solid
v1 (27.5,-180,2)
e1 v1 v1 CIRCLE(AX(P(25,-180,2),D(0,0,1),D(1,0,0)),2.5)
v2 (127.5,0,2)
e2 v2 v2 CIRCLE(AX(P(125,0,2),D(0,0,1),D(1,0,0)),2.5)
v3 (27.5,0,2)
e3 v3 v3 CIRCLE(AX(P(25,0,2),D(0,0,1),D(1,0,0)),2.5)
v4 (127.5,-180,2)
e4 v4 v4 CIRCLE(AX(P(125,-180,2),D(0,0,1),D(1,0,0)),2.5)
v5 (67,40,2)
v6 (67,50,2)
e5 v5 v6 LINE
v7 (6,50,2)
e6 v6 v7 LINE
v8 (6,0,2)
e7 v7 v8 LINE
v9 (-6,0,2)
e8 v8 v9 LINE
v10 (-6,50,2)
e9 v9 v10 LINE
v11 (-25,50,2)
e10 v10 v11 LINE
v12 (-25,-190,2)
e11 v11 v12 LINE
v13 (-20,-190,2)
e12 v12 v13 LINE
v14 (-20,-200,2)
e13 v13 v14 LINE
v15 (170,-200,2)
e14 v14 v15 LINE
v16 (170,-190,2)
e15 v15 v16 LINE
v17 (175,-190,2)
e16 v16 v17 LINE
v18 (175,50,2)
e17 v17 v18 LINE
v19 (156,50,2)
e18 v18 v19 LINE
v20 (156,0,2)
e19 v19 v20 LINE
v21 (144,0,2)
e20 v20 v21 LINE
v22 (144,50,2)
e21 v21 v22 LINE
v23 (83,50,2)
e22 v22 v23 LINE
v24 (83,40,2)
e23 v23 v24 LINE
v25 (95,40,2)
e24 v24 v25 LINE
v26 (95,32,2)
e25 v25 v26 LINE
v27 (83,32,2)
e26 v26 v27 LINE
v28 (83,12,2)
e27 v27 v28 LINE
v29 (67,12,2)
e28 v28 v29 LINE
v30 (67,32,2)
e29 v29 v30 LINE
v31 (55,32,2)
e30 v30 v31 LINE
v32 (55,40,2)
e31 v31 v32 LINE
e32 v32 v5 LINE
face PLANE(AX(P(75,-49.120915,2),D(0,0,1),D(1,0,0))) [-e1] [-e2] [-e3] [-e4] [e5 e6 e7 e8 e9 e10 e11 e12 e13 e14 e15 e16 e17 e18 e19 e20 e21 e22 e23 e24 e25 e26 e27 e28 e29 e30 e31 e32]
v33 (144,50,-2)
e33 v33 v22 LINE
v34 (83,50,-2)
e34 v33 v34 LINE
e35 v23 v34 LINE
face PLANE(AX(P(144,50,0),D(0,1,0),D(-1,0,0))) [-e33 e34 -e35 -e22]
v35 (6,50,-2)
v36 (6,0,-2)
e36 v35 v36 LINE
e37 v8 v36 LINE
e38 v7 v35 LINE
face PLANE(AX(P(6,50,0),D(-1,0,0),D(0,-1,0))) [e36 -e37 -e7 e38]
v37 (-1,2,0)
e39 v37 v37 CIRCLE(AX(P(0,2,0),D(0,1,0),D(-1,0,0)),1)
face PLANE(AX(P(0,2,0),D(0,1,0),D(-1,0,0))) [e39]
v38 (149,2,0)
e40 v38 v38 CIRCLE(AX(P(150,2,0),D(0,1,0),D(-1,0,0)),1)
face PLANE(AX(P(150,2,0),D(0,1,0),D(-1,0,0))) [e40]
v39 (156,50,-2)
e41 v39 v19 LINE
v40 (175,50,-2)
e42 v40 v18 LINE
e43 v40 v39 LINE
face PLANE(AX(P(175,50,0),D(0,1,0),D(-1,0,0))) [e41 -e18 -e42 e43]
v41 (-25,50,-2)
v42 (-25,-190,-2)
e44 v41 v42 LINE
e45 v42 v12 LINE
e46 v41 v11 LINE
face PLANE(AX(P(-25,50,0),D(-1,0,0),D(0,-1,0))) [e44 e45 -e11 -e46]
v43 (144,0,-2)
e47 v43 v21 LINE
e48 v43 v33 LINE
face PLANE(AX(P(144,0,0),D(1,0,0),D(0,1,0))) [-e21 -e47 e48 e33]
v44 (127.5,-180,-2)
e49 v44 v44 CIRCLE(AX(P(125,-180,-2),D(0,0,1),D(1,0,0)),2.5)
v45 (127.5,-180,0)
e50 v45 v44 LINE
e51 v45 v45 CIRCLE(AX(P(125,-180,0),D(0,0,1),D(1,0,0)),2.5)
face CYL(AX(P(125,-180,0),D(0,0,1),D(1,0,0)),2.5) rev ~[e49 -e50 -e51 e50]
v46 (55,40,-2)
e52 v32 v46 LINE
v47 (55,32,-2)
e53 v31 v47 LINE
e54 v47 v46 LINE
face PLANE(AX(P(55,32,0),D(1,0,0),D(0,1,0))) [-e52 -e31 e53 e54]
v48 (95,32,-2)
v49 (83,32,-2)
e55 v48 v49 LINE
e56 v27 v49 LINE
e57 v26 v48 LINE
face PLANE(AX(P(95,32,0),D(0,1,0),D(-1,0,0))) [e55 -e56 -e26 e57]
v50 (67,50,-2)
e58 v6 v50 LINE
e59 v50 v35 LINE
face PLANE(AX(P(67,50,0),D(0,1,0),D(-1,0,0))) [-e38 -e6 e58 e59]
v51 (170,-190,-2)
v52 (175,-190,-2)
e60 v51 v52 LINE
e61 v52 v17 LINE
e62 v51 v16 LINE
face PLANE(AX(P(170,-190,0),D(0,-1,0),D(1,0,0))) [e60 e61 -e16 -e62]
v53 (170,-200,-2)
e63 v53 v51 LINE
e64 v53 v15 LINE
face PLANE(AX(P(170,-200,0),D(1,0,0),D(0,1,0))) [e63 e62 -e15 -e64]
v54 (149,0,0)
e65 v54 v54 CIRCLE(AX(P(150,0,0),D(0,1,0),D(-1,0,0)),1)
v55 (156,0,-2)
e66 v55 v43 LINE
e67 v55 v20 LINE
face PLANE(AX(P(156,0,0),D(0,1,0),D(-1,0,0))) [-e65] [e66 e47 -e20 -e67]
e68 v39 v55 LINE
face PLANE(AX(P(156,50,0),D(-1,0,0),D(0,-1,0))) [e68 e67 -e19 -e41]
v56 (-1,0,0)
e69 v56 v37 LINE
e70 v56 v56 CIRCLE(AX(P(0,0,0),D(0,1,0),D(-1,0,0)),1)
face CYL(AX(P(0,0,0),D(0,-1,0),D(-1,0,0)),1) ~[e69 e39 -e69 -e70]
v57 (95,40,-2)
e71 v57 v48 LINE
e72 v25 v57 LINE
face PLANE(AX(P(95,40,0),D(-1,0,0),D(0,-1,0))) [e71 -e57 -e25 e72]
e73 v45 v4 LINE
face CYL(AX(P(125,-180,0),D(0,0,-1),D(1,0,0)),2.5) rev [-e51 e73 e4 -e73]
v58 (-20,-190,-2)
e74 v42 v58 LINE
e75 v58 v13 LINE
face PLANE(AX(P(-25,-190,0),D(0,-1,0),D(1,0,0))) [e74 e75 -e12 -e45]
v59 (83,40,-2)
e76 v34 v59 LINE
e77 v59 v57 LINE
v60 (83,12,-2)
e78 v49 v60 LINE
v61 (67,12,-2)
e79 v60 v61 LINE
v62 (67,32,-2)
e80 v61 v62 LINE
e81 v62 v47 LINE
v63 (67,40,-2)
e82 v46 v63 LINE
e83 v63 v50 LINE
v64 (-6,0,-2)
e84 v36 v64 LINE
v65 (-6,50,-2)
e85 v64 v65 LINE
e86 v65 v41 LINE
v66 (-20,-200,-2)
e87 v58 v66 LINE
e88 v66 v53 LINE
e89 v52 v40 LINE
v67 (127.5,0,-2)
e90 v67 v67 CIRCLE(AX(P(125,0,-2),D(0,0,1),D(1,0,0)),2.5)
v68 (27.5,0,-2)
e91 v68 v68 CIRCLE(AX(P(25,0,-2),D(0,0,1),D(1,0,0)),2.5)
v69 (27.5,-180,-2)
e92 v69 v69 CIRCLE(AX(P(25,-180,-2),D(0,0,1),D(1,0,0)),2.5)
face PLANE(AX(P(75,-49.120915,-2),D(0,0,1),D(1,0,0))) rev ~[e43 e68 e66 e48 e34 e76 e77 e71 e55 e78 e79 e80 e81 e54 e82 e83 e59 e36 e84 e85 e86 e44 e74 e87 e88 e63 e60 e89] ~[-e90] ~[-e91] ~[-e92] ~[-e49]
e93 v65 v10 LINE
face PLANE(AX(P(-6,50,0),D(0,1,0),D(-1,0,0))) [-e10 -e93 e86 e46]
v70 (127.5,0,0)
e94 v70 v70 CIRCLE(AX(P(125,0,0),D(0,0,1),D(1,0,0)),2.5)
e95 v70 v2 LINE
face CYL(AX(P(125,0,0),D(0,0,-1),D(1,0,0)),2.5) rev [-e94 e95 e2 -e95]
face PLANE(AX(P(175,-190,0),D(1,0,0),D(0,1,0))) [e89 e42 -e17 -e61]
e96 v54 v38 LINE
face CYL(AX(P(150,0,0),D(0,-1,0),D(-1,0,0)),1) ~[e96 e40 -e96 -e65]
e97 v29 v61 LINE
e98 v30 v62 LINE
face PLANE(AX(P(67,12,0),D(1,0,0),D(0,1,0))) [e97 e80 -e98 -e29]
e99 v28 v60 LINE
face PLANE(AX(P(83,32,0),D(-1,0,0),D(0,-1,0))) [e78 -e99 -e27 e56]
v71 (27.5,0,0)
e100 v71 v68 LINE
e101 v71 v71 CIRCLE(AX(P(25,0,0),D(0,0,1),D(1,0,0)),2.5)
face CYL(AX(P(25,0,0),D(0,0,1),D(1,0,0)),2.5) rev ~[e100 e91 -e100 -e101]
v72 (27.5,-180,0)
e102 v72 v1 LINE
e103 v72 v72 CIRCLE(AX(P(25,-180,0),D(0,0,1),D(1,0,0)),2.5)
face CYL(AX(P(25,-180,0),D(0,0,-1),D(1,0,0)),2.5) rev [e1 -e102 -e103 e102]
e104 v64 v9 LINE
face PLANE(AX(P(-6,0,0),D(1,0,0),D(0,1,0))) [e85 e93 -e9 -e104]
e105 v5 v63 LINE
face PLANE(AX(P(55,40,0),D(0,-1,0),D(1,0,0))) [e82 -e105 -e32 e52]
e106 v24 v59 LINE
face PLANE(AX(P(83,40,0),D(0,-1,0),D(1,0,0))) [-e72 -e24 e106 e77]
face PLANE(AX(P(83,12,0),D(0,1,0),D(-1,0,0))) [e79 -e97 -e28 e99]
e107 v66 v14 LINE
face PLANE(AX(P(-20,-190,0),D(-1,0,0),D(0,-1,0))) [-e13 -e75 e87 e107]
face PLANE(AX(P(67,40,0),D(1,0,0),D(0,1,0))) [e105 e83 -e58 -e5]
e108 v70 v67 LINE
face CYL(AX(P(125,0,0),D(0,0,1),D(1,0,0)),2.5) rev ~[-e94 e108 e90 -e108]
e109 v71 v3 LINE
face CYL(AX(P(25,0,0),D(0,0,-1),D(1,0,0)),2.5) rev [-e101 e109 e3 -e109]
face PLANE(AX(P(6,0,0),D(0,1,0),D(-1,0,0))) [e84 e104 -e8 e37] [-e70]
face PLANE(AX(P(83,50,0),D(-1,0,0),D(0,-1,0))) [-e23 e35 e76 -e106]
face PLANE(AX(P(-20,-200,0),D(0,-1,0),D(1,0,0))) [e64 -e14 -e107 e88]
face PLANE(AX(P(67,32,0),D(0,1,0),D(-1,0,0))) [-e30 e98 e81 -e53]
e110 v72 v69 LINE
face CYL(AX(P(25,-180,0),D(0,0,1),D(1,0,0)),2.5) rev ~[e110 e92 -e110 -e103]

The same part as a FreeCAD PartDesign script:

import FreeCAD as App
import Part
import Sketcher
from FreeCAD import Vector

doc = App.newDocument("Part")
body = doc.addObject("PartDesign::Body", "Body")

# Sketch on XY plane
sketch1 = doc.addObject("Sketcher::SketchObject", "Sketch")
body.addObject(sketch1)
sketch1.AttachmentSupport = (doc.XY_Plane, [""])
sketch1.MapMode = "FlatFace"
sketch1.addGeometry(Part.LineSegment(Vector(6, 0, 0), Vector(-6, 0, 0)), False)
sketch1.addGeometry(Part.LineSegment(Vector(-6, 0, 0), Vector(-6, 50, 0)), False)
sketch1.addGeometry(Part.LineSegment(Vector(-6, 50, 0), Vector(-25, 50, 0)), False)
sketch1.addGeometry(Part.LineSegment(Vector(-25, 50, 0), Vector(-25, -190, 0)), False)
sketch1.addGeometry(Part.LineSegment(Vector(-25, -190, 0), Vector(-20, -190, 0)), False)
sketch1.addGeometry(Part.LineSegment(Vector(-20, -190, 0), Vector(-20, -200, 0)), False)
sketch1.addGeometry(Part.LineSegment(Vector(-20, -200, 0), Vector(170, -200, 0)), False)
sketch1.addGeometry(Part.LineSegment(Vector(170, -200, 0), Vector(170, -190, 0)), False)
sketch1.addGeometry(Part.LineSegment(Vector(170, -190, 0), Vector(175, -190, 0)), False)
sketch1.addGeometry(Part.LineSegment(Vector(175, -190, 0), Vector(175, 50, 0)), False)
sketch1.addGeometry(Part.LineSegment(Vector(175, 50, 0), Vector(156, 50, 0)), False)
sketch1.addGeometry(Part.LineSegment(Vector(156, 50, 0), Vector(156, 0, 0)), False)
sketch1.addGeometry(Part.LineSegment(Vector(156, 0, 0), Vector(144, 0, 0)), False)
sketch1.addGeometry(Part.LineSegment(Vector(144, 0, 0), Vector(144, 50, 0)), False)
sketch1.addGeometry(Part.LineSegment(Vector(144, 50, 0), Vector(83, 50, 0)), False)
sketch1.addGeometry(Part.LineSegment(Vector(83, 50, 0), Vector(83, 40, 0)), False)
sketch1.addGeometry(Part.LineSegment(Vector(83, 40, 0), Vector(95, 40, 0)), False)
sketch1.addGeometry(Part.LineSegment(Vector(95, 40, 0), Vector(95, 32, 0)), False)
sketch1.addGeometry(Part.LineSegment(Vector(95, 32, 0), Vector(83, 32, 0)), False)
sketch1.addGeometry(Part.LineSegment(Vector(83, 32, 0), Vector(83, 12, 0)), False)
sketch1.addGeometry(Part.LineSegment(Vector(83, 12, 0), Vector(67, 12, 0)), False)
sketch1.addGeometry(Part.LineSegment(Vector(67, 12, 0), Vector(67, 32, 0)), False)
sketch1.addGeometry(Part.LineSegment(Vector(67, 32, 0), Vector(55, 32, 0)), False)
sketch1.addGeometry(Part.LineSegment(Vector(55, 32, 0), Vector(55, 40, 0)), False)
sketch1.addGeometry(Part.LineSegment(Vector(55, 40, 0), Vector(67, 40, 0)), False)
sketch1.addGeometry(Part.LineSegment(Vector(67, 40, 0), Vector(67, 50, 0)), False)
sketch1.addGeometry(Part.LineSegment(Vector(67, 50, 0), Vector(6, 50, 0)), False)
sketch1.addGeometry(Part.LineSegment(Vector(6, 50, 0), Vector(6, 0, 0)), False)
sketch1.addGeometry(Part.Circle(Vector(25, -180, 0), Vector(0, 0, 1), 2.5), False)
sketch1.addGeometry(Part.Circle(Vector(125, -180, 0), Vector(0, 0, 1), 2.5), False)
sketch1.addGeometry(Part.Circle(Vector(25, 0, 0), Vector(0, 0, 1), 2.5), False)
sketch1.addGeometry(Part.Circle(Vector(125, 0, 0), Vector(0, 0, 1), 2.5), False)
sketch1.addConstraint(Sketcher.Constraint("Coincident", 0, 2, 1, 1))
sketch1.addConstraint(Sketcher.Constraint("Coincident", 1, 2, 2, 1))
sketch1.addConstraint(Sketcher.Constraint("Coincident", 2, 2, 3, 1))
sketch1.addConstraint(Sketcher.Constraint("Coincident", 3, 2, 4, 1))
sketch1.addConstraint(Sketcher.Constraint("Coincident", 4, 2, 5, 1))
sketch1.addConstraint(Sketcher.Constraint("Coincident", 5, 2, 6, 1))
sketch1.addConstraint(Sketcher.Constraint("Coincident", 6, 2, 7, 1))
sketch1.addConstraint(Sketcher.Constraint("Coincident", 7, 2, 8, 1))
sketch1.addConstraint(Sketcher.Constraint("Coincident", 8, 2, 9, 1))
sketch1.addConstraint(Sketcher.Constraint("Coincident", 9, 2, 10, 1))
sketch1.addConstraint(Sketcher.Constraint("Coincident", 10, 2, 11, 1))
sketch1.addConstraint(Sketcher.Constraint("Coincident", 11, 2, 12, 1))
sketch1.addConstraint(Sketcher.Constraint("Coincident", 12, 2, 13, 1))
sketch1.addConstraint(Sketcher.Constraint("Coincident", 13, 2, 14, 1))
sketch1.addConstraint(Sketcher.Constraint("Coincident", 14, 2, 15, 1))
sketch1.addConstraint(Sketcher.Constraint("Coincident", 15, 2, 16, 1))
sketch1.addConstraint(Sketcher.Constraint("Coincident", 16, 2, 17, 1))
sketch1.addConstraint(Sketcher.Constraint("Coincident", 17, 2, 18, 1))
sketch1.addConstraint(Sketcher.Constraint("Coincident", 18, 2, 19, 1))
sketch1.addConstraint(Sketcher.Constraint("Coincident", 19, 2, 20, 1))
sketch1.addConstraint(Sketcher.Constraint("Coincident", 20, 2, 21, 1))
sketch1.addConstraint(Sketcher.Constraint("Coincident", 21, 2, 22, 1))
sketch1.addConstraint(Sketcher.Constraint("Coincident", 22, 2, 23, 1))
sketch1.addConstraint(Sketcher.Constraint("Coincident", 23, 2, 24, 1))
sketch1.addConstraint(Sketcher.Constraint("Coincident", 24, 2, 25, 1))
sketch1.addConstraint(Sketcher.Constraint("Coincident", 25, 2, 26, 1))
sketch1.addConstraint(Sketcher.Constraint("Coincident", 26, 2, 27, 1))
sketch1.addConstraint(Sketcher.Constraint("Coincident", 27, 2, 0, 1))
sketch1.addConstraint(Sketcher.Constraint("Horizontal", 0))
sketch1.addConstraint(Sketcher.Constraint("Vertical", 1))
sketch1.addConstraint(Sketcher.Constraint("Horizontal", 2))
sketch1.addConstraint(Sketcher.Constraint("Vertical", 3))
sketch1.addConstraint(Sketcher.Constraint("Horizontal", 4))
sketch1.addConstraint(Sketcher.Constraint("Vertical", 5))
sketch1.addConstraint(Sketcher.Constraint("Horizontal", 6))
sketch1.addConstraint(Sketcher.Constraint("Vertical", 7))
sketch1.addConstraint(Sketcher.Constraint("Horizontal", 8))
sketch1.addConstraint(Sketcher.Constraint("Vertical", 9))
sketch1.addConstraint(Sketcher.Constraint("Horizontal", 10))
sketch1.addConstraint(Sketcher.Constraint("Vertical", 11))
sketch1.addConstraint(Sketcher.Constraint("Horizontal", 12))
sketch1.addConstraint(Sketcher.Constraint("Vertical", 13))
sketch1.addConstraint(Sketcher.Constraint("Horizontal", 14))
sketch1.addConstraint(Sketcher.Constraint("Vertical", 15))
sketch1.addConstraint(Sketcher.Constraint("Horizontal", 16))
sketch1.addConstraint(Sketcher.Constraint("Vertical", 17))
sketch1.addConstraint(Sketcher.Constraint("Horizontal", 18))
sketch1.addConstraint(Sketcher.Constraint("Vertical", 19))
sketch1.addConstraint(Sketcher.Constraint("Horizontal", 20))
sketch1.addConstraint(Sketcher.Constraint("Vertical", 21))
sketch1.addConstraint(Sketcher.Constraint("Horizontal", 22))
sketch1.addConstraint(Sketcher.Constraint("Vertical", 23))
sketch1.addConstraint(Sketcher.Constraint("Horizontal", 24))
sketch1.addConstraint(Sketcher.Constraint("Vertical", 25))
sketch1.addConstraint(Sketcher.Constraint("Horizontal", 26))
sketch1.addConstraint(Sketcher.Constraint("Vertical", 27))
sketch1.addConstraint(Sketcher.Constraint("Equal", 28, 29))
sketch1.addConstraint(Sketcher.Constraint("Equal", 29, 30))
sketch1.addConstraint(Sketcher.Constraint("Equal", 30, 31))
sketch1.addConstraint(Sketcher.Constraint("Symmetric", 0, 2, 27, 2, -1, 1))
sketch1.addConstraint(Sketcher.Constraint("PointOnObject", 30, 3, -1))
sketch1.addConstraint(Sketcher.Constraint("PointOnObject", 31, 3, -1))
sketch1.addConstraint(Sketcher.Constraint("PointOnObject", 11, 2, -1))
sketch1.addConstraint(Sketcher.Constraint("Horizontal", 28, 3, 29, 3))
sketch1.addConstraint(Sketcher.Constraint("Horizontal", 4, 2, 7, 2))
sketch1.addConstraint(Sketcher.Constraint("Horizontal", 2, 2, 9, 2))
sketch1.addConstraint(Sketcher.Constraint("Horizontal", 10, 2, 13, 2))
sketch1.addConstraint(Sketcher.Constraint("Horizontal", 18, 2, 21, 2))
sketch1.addConstraint(Sketcher.Constraint("Horizontal", 16, 2, 23, 2))
sketch1.addConstraint(Sketcher.Constraint("Horizontal", 14, 2, 25, 2))
sketch1.addConstraint(Sketcher.Constraint("Vertical", 28, 3, 30, 3))
sketch1.addConstraint(Sketcher.Constraint("Vertical", 29, 3, 31, 3))
sketch1.addConstraint(Sketcher.Constraint("Vertical", 15, 2, 18, 2))
sketch1.addConstraint(Sketcher.Constraint("Vertical", 21, 2, 24, 2))
sketch1.addConstraint(Sketcher.Constraint("Equal", 4, 8))
sketch1.addConstraint(Sketcher.Constraint("Equal", 2, 10))
sketch1.addConstraint(Sketcher.Constraint("Equal", 0, 12))
sketch1.addConstraint(Sketcher.Constraint("Equal", 12, 16))
sketch1.addConstraint(Sketcher.Constraint("Equal", 18, 22))
sketch1.addConstraint(Sketcher.Constraint("Equal", 14, 26))
sketch1.addConstraint(Sketcher.Constraint("Equal", 7, 15))
sketch1.addConstraint(Sketcher.Constraint("Diameter", 28, 5.0))
sketch1.addConstraint(Sketcher.Constraint("DistanceX", 0, 2, 0, 1, 12.0))
sketch1.addConstraint(Sketcher.Constraint("DistanceX", 2, 2, 2, 1, 19.0))
sketch1.addConstraint(Sketcher.Constraint("DistanceX", 4, 1, 4, 2, 5.0))
sketch1.addConstraint(Sketcher.Constraint("DistanceX", 6, 1, 6, 2, 190.0))
sketch1.addConstraint(Sketcher.Constraint("DistanceX", 14, 2, 14, 1, 61.0))
sketch1.addConstraint(Sketcher.Constraint("DistanceY", 1, 1, 1, 2, 50.0))
sketch1.addConstraint(Sketcher.Constraint("DistanceY", 3, 2, 3, 1, 240.0))
sketch1.addConstraint(Sketcher.Constraint("DistanceY", 5, 2, 5, 1, 10.0))
sketch1.addConstraint(Sketcher.Constraint("DistanceY", 17, 2, 17, 1, 8.0))
sketch1.addConstraint(Sketcher.Constraint("DistanceY", 19, 2, 19, 1, 20.0))
sketch1.addConstraint(Sketcher.Constraint("DistanceX", -1, 1, 28, 3, 25.0))
sketch1.addConstraint(Sketcher.Constraint("DistanceY", 28, 3, -1, 1, 180.0))
sketch1.addConstraint(Sketcher.Constraint("DistanceX", -1, 1, 29, 3, 125.0))
pad1 = doc.addObject("PartDesign::Pad", "Pad")
body.addObject(pad1)
pad1.Profile = sketch1
pad1.Type = "TwoLengths"
pad1.Length = 2
pad1.Length2 = 2

# Sketch on XZ plane
sketch2 = doc.addObject("Sketcher::SketchObject", "Sketch001")
body.addObject(sketch2)
sketch2.AttachmentSupport = (doc.XZ_Plane, [""])
sketch2.MapMode = "FlatFace"
sketch2.addGeometry(Part.Circle(Vector(150, 0, 0), Vector(0, 0, 1), 1), False)
sketch2.addGeometry(Part.Circle(Vector(0, 0, 0), Vector(0, 0, 1), 1), False)
sketch2.addConstraint(Sketcher.Constraint("Coincident", 1, 3, -1, 1))
sketch2.addConstraint(Sketcher.Constraint("Equal", 0, 1))
sketch2.addConstraint(Sketcher.Constraint("PointOnObject", 0, 3, -1))
sketch2.addConstraint(Sketcher.Constraint("Diameter", 0, 2.0))
sketch2.addConstraint(Sketcher.Constraint("DistanceX", -1, 1, 0, 3, 150.0))
pad2 = doc.addObject("PartDesign::Pad", "Pad001")
body.addObject(pad2)
pad2.Profile = sketch2
pad2.Length = 2
pad2.Reversed = True

doc.recompute()
